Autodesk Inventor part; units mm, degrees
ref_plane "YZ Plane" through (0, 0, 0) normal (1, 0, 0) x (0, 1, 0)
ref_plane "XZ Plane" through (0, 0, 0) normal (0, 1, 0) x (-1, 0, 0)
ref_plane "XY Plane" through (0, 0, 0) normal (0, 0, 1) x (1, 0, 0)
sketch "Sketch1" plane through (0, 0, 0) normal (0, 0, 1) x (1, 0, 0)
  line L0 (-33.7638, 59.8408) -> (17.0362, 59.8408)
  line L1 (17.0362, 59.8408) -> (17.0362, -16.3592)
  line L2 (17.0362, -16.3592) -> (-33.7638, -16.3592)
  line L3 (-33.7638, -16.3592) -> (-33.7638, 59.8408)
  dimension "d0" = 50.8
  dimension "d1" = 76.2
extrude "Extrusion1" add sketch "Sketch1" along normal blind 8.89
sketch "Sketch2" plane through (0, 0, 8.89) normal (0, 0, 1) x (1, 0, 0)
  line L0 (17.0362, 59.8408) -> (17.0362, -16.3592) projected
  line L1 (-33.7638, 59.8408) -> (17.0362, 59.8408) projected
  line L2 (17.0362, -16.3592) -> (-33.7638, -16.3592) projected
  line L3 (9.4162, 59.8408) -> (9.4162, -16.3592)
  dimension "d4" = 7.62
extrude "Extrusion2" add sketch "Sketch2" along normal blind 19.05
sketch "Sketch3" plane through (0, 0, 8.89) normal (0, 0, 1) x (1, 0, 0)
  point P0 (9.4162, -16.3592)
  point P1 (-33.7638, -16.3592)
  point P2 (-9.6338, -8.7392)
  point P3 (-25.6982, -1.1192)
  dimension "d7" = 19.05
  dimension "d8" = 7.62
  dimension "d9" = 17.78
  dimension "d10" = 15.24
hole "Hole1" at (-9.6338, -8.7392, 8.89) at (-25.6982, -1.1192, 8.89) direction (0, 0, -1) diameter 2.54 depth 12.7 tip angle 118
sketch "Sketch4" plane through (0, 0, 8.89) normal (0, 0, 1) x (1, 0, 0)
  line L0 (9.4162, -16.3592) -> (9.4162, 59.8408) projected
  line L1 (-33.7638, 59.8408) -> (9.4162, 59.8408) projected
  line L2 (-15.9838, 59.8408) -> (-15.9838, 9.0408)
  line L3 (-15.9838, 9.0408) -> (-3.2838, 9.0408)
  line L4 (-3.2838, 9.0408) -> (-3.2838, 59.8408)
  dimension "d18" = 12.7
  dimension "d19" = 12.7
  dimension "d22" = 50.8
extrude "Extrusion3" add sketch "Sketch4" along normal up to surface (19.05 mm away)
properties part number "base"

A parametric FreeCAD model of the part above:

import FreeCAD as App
import Part
import Sketcher
from FreeCAD import Vector
Q = App.Units.Quantity

doc = App.newDocument("Part")
body = doc.addObject("PartDesign::Body", "Body")

sketch1 = doc.addObject("Sketcher::SketchObject", "Sketch")
body.addObject(sketch1)
sketch1.AttachmentSupport = (doc.XY_Plane, [""])
sketch1.MapMode = "FlatFace"
sketch1.addGeometry([
    Part.LineSegment(Vector(17.0362, 59.8408, 0), Vector(-33.7638, 59.8408, 0)),
    Part.LineSegment(Vector(-33.7638, 59.8408, 0), Vector(-33.7638, -16.3592, 0)),
    Part.LineSegment(Vector(-33.7638, -16.3592, 0), Vector(17.0362, -16.3592, 0)),
    Part.LineSegment(Vector(17.0362, -16.3592, 0), Vector(17.0362, 59.8408, 0)),
], False)
sketch1.addConstraint([
    Sketcher.Constraint("Coincident", 0, 2, 1, 1),
    Sketcher.Constraint("Coincident", 1, 2, 2, 1),
    Sketcher.Constraint("Coincident", 2, 2, 3, 1),
    Sketcher.Constraint("Coincident", 3, 2, 0, 1),
    Sketcher.Constraint("Horizontal", 0),
    Sketcher.Constraint("Vertical", 1),
    Sketcher.Constraint("Horizontal", 2),
    Sketcher.Constraint("Vertical", 3),
    Sketcher.Constraint("DistanceX", 0, 2, 0, 1, Q("2 in")),
    Sketcher.Constraint("DistanceY", 1, 2, 1, 1, Q("3 in")),
    Sketcher.Constraint("DistanceX", 0, 2, -1, 1, 33.7638),
    Sketcher.Constraint("DistanceY", -1, 1, 0, 2, 59.8408),
])
pad1 = doc.addObject("PartDesign::Pad", "Pad")
body.addObject(pad1)
pad1.Profile = sketch1
pad1.Length = Q("0.35 in")

sketch2 = doc.addObject("Sketcher::SketchObject", "Sketch001")
body.addObject(sketch2)
sketch2.AttachmentSupport = (doc.XY_Plane, [""])
sketch2.MapMode = "FlatFace"
sketch2.AttachmentOffset = App.Placement(Vector(0, 0, 0.35 * 25.4), App.Rotation())
sketch2.addGeometry([
    Part.LineSegment(Vector(17.0362, -16.3592, 0), Vector(17.0362, 59.8408, 0)),
    Part.LineSegment(Vector(17.0362, 59.8408, 0), Vector(9.4162, 59.8408, 0)),
    Part.LineSegment(Vector(9.4162, 59.8408, 0), Vector(9.4162, -16.3592, 0)),
    Part.LineSegment(Vector(9.4162, -16.3592, 0), Vector(17.0362, -16.3592, 0)),
], False)
sketch2.addConstraint([
    Sketcher.Constraint("Coincident", 0, 2, 1, 1),
    Sketcher.Constraint("Coincident", 1, 2, 2, 1),
    Sketcher.Constraint("Coincident", 2, 2, 3, 1),
    Sketcher.Constraint("Coincident", 3, 2, 0, 1),
    Sketcher.Constraint("Vertical", 0),
    Sketcher.Constraint("Horizontal", 1),
    Sketcher.Constraint("Vertical", 2),
    Sketcher.Constraint("Horizontal", 3),
    Sketcher.Constraint("DistanceX", 1, 2, 1, 1, Q("0.3 in")),
    Sketcher.Constraint("DistanceY", 0, 1, 0, 2, Q("3 in")),
    Sketcher.Constraint("DistanceX", -1, 1, 0, 2, 17.0362),
    Sketcher.Constraint("DistanceY", -1, 1, 0, 2, 59.8408),
])
pad2 = doc.addObject("PartDesign::Pad", "Pad001")
body.addObject(pad2)
pad2.Profile = sketch2
pad2.Length = Q("0.75 in")

sketch3 = doc.addObject("Sketcher::SketchObject", "Sketch002")
body.addObject(sketch3)
sketch3.AttachmentSupport = (doc.XY_Plane, [""])
sketch3.MapMode = "FlatFace"
sketch3.AttachmentOffset = App.Placement(Vector(0, 0, 0.35 * 25.4), App.Rotation())
sketch3.addGeometry([
    Part.Circle(Vector(-9.6338, -8.7392, 0), Vector(0, 0, 1), 1.27),
    Part.Circle(Vector(-25.6982, -1.1192, 0), Vector(0, 0, 1), 1.27),
], False)
sketch3.addConstraint([
    Sketcher.Constraint("Equal", 0, 1),
    Sketcher.Constraint("Diameter", 0, Q("0.1 in")),
    Sketcher.Constraint("DistanceY", 0, 3, 1, 3, Q("0.3 in")),
    Sketcher.Constraint("DistanceX", 0, 3, -1, 1, 9.6338),
    Sketcher.Constraint("DistanceY", 0, 3, -1, 1, 8.7392),
    Sketcher.Constraint("DistanceX", 1, 3, -1, 1, 25.6982),
])
doc.recompute()
hole = doc.addObject("PartDesign::Hole", "Hole")
body.addObject(hole)
hole.Profile = sketch3
hole.ThreadType = "None"
hole.Diameter = Q("0.1 in")
hole.DepthType = "Dimension"
hole.Depth = Q("0.5 in")
hole.DrillPoint = "Angled"
hole.DrillPointAngle = 118

sketch4 = doc.addObject("Sketcher::SketchObject", "Sketch003")
body.addObject(sketch4)
sketch4.AttachmentSupport = (doc.XY_Plane, [""])
sketch4.MapMode = "FlatFace"
sketch4.AttachmentOffset = App.Placement(Vector(0, 0, 0.35 * 25.4), App.Rotation())
sketch4.addGeometry([
    Part.LineSegment(Vector(-3.2838, 59.8408, 0), Vector(-15.9838, 59.8408, 0)),
    Part.LineSegment(Vector(-15.9838, 59.8408, 0), Vector(-15.9838, 9.0408, 0)),
    Part.LineSegment(Vector(-15.9838, 9.0408, 0), Vector(-3.2838, 9.0408, 0)),
    Part.LineSegment(Vector(-3.2838, 9.0408, 0), Vector(-3.2838, 59.8408, 0)),
], False)
sketch4.addConstraint([
    Sketcher.Constraint("Coincident", 0, 2, 1, 1),
    Sketcher.Constraint("Coincident", 1, 2, 2, 1),
    Sketcher.Constraint("Coincident", 2, 2, 3, 1),
    Sketcher.Constraint("Coincident", 3, 2, 0, 1),
    Sketcher.Constraint("Horizontal", 0),
    Sketcher.Constraint("Vertical", 1),
    Sketcher.Constraint("Horizontal", 2),
    Sketcher.Constraint("Vertical", 3),
    Sketcher.Constraint("DistanceY", 1, 2, 1, 1, Q("2 in")),
    Sketcher.Constraint("DistanceX", 0, 2, 0, 1, Q("0.5 in")),
    Sketcher.Constraint("DistanceX", 0, 2, -1, 1, 15.9838),
    Sketcher.Constraint("DistanceY", -1, 1, 0, 2, 59.8408),
])
pad3 = doc.addObject("PartDesign::Pad", "Pad002")
body.addObject(pad3)
pad3.Profile = sketch4
pad3.Length = Q("0.75 in")

doc.recompute()
